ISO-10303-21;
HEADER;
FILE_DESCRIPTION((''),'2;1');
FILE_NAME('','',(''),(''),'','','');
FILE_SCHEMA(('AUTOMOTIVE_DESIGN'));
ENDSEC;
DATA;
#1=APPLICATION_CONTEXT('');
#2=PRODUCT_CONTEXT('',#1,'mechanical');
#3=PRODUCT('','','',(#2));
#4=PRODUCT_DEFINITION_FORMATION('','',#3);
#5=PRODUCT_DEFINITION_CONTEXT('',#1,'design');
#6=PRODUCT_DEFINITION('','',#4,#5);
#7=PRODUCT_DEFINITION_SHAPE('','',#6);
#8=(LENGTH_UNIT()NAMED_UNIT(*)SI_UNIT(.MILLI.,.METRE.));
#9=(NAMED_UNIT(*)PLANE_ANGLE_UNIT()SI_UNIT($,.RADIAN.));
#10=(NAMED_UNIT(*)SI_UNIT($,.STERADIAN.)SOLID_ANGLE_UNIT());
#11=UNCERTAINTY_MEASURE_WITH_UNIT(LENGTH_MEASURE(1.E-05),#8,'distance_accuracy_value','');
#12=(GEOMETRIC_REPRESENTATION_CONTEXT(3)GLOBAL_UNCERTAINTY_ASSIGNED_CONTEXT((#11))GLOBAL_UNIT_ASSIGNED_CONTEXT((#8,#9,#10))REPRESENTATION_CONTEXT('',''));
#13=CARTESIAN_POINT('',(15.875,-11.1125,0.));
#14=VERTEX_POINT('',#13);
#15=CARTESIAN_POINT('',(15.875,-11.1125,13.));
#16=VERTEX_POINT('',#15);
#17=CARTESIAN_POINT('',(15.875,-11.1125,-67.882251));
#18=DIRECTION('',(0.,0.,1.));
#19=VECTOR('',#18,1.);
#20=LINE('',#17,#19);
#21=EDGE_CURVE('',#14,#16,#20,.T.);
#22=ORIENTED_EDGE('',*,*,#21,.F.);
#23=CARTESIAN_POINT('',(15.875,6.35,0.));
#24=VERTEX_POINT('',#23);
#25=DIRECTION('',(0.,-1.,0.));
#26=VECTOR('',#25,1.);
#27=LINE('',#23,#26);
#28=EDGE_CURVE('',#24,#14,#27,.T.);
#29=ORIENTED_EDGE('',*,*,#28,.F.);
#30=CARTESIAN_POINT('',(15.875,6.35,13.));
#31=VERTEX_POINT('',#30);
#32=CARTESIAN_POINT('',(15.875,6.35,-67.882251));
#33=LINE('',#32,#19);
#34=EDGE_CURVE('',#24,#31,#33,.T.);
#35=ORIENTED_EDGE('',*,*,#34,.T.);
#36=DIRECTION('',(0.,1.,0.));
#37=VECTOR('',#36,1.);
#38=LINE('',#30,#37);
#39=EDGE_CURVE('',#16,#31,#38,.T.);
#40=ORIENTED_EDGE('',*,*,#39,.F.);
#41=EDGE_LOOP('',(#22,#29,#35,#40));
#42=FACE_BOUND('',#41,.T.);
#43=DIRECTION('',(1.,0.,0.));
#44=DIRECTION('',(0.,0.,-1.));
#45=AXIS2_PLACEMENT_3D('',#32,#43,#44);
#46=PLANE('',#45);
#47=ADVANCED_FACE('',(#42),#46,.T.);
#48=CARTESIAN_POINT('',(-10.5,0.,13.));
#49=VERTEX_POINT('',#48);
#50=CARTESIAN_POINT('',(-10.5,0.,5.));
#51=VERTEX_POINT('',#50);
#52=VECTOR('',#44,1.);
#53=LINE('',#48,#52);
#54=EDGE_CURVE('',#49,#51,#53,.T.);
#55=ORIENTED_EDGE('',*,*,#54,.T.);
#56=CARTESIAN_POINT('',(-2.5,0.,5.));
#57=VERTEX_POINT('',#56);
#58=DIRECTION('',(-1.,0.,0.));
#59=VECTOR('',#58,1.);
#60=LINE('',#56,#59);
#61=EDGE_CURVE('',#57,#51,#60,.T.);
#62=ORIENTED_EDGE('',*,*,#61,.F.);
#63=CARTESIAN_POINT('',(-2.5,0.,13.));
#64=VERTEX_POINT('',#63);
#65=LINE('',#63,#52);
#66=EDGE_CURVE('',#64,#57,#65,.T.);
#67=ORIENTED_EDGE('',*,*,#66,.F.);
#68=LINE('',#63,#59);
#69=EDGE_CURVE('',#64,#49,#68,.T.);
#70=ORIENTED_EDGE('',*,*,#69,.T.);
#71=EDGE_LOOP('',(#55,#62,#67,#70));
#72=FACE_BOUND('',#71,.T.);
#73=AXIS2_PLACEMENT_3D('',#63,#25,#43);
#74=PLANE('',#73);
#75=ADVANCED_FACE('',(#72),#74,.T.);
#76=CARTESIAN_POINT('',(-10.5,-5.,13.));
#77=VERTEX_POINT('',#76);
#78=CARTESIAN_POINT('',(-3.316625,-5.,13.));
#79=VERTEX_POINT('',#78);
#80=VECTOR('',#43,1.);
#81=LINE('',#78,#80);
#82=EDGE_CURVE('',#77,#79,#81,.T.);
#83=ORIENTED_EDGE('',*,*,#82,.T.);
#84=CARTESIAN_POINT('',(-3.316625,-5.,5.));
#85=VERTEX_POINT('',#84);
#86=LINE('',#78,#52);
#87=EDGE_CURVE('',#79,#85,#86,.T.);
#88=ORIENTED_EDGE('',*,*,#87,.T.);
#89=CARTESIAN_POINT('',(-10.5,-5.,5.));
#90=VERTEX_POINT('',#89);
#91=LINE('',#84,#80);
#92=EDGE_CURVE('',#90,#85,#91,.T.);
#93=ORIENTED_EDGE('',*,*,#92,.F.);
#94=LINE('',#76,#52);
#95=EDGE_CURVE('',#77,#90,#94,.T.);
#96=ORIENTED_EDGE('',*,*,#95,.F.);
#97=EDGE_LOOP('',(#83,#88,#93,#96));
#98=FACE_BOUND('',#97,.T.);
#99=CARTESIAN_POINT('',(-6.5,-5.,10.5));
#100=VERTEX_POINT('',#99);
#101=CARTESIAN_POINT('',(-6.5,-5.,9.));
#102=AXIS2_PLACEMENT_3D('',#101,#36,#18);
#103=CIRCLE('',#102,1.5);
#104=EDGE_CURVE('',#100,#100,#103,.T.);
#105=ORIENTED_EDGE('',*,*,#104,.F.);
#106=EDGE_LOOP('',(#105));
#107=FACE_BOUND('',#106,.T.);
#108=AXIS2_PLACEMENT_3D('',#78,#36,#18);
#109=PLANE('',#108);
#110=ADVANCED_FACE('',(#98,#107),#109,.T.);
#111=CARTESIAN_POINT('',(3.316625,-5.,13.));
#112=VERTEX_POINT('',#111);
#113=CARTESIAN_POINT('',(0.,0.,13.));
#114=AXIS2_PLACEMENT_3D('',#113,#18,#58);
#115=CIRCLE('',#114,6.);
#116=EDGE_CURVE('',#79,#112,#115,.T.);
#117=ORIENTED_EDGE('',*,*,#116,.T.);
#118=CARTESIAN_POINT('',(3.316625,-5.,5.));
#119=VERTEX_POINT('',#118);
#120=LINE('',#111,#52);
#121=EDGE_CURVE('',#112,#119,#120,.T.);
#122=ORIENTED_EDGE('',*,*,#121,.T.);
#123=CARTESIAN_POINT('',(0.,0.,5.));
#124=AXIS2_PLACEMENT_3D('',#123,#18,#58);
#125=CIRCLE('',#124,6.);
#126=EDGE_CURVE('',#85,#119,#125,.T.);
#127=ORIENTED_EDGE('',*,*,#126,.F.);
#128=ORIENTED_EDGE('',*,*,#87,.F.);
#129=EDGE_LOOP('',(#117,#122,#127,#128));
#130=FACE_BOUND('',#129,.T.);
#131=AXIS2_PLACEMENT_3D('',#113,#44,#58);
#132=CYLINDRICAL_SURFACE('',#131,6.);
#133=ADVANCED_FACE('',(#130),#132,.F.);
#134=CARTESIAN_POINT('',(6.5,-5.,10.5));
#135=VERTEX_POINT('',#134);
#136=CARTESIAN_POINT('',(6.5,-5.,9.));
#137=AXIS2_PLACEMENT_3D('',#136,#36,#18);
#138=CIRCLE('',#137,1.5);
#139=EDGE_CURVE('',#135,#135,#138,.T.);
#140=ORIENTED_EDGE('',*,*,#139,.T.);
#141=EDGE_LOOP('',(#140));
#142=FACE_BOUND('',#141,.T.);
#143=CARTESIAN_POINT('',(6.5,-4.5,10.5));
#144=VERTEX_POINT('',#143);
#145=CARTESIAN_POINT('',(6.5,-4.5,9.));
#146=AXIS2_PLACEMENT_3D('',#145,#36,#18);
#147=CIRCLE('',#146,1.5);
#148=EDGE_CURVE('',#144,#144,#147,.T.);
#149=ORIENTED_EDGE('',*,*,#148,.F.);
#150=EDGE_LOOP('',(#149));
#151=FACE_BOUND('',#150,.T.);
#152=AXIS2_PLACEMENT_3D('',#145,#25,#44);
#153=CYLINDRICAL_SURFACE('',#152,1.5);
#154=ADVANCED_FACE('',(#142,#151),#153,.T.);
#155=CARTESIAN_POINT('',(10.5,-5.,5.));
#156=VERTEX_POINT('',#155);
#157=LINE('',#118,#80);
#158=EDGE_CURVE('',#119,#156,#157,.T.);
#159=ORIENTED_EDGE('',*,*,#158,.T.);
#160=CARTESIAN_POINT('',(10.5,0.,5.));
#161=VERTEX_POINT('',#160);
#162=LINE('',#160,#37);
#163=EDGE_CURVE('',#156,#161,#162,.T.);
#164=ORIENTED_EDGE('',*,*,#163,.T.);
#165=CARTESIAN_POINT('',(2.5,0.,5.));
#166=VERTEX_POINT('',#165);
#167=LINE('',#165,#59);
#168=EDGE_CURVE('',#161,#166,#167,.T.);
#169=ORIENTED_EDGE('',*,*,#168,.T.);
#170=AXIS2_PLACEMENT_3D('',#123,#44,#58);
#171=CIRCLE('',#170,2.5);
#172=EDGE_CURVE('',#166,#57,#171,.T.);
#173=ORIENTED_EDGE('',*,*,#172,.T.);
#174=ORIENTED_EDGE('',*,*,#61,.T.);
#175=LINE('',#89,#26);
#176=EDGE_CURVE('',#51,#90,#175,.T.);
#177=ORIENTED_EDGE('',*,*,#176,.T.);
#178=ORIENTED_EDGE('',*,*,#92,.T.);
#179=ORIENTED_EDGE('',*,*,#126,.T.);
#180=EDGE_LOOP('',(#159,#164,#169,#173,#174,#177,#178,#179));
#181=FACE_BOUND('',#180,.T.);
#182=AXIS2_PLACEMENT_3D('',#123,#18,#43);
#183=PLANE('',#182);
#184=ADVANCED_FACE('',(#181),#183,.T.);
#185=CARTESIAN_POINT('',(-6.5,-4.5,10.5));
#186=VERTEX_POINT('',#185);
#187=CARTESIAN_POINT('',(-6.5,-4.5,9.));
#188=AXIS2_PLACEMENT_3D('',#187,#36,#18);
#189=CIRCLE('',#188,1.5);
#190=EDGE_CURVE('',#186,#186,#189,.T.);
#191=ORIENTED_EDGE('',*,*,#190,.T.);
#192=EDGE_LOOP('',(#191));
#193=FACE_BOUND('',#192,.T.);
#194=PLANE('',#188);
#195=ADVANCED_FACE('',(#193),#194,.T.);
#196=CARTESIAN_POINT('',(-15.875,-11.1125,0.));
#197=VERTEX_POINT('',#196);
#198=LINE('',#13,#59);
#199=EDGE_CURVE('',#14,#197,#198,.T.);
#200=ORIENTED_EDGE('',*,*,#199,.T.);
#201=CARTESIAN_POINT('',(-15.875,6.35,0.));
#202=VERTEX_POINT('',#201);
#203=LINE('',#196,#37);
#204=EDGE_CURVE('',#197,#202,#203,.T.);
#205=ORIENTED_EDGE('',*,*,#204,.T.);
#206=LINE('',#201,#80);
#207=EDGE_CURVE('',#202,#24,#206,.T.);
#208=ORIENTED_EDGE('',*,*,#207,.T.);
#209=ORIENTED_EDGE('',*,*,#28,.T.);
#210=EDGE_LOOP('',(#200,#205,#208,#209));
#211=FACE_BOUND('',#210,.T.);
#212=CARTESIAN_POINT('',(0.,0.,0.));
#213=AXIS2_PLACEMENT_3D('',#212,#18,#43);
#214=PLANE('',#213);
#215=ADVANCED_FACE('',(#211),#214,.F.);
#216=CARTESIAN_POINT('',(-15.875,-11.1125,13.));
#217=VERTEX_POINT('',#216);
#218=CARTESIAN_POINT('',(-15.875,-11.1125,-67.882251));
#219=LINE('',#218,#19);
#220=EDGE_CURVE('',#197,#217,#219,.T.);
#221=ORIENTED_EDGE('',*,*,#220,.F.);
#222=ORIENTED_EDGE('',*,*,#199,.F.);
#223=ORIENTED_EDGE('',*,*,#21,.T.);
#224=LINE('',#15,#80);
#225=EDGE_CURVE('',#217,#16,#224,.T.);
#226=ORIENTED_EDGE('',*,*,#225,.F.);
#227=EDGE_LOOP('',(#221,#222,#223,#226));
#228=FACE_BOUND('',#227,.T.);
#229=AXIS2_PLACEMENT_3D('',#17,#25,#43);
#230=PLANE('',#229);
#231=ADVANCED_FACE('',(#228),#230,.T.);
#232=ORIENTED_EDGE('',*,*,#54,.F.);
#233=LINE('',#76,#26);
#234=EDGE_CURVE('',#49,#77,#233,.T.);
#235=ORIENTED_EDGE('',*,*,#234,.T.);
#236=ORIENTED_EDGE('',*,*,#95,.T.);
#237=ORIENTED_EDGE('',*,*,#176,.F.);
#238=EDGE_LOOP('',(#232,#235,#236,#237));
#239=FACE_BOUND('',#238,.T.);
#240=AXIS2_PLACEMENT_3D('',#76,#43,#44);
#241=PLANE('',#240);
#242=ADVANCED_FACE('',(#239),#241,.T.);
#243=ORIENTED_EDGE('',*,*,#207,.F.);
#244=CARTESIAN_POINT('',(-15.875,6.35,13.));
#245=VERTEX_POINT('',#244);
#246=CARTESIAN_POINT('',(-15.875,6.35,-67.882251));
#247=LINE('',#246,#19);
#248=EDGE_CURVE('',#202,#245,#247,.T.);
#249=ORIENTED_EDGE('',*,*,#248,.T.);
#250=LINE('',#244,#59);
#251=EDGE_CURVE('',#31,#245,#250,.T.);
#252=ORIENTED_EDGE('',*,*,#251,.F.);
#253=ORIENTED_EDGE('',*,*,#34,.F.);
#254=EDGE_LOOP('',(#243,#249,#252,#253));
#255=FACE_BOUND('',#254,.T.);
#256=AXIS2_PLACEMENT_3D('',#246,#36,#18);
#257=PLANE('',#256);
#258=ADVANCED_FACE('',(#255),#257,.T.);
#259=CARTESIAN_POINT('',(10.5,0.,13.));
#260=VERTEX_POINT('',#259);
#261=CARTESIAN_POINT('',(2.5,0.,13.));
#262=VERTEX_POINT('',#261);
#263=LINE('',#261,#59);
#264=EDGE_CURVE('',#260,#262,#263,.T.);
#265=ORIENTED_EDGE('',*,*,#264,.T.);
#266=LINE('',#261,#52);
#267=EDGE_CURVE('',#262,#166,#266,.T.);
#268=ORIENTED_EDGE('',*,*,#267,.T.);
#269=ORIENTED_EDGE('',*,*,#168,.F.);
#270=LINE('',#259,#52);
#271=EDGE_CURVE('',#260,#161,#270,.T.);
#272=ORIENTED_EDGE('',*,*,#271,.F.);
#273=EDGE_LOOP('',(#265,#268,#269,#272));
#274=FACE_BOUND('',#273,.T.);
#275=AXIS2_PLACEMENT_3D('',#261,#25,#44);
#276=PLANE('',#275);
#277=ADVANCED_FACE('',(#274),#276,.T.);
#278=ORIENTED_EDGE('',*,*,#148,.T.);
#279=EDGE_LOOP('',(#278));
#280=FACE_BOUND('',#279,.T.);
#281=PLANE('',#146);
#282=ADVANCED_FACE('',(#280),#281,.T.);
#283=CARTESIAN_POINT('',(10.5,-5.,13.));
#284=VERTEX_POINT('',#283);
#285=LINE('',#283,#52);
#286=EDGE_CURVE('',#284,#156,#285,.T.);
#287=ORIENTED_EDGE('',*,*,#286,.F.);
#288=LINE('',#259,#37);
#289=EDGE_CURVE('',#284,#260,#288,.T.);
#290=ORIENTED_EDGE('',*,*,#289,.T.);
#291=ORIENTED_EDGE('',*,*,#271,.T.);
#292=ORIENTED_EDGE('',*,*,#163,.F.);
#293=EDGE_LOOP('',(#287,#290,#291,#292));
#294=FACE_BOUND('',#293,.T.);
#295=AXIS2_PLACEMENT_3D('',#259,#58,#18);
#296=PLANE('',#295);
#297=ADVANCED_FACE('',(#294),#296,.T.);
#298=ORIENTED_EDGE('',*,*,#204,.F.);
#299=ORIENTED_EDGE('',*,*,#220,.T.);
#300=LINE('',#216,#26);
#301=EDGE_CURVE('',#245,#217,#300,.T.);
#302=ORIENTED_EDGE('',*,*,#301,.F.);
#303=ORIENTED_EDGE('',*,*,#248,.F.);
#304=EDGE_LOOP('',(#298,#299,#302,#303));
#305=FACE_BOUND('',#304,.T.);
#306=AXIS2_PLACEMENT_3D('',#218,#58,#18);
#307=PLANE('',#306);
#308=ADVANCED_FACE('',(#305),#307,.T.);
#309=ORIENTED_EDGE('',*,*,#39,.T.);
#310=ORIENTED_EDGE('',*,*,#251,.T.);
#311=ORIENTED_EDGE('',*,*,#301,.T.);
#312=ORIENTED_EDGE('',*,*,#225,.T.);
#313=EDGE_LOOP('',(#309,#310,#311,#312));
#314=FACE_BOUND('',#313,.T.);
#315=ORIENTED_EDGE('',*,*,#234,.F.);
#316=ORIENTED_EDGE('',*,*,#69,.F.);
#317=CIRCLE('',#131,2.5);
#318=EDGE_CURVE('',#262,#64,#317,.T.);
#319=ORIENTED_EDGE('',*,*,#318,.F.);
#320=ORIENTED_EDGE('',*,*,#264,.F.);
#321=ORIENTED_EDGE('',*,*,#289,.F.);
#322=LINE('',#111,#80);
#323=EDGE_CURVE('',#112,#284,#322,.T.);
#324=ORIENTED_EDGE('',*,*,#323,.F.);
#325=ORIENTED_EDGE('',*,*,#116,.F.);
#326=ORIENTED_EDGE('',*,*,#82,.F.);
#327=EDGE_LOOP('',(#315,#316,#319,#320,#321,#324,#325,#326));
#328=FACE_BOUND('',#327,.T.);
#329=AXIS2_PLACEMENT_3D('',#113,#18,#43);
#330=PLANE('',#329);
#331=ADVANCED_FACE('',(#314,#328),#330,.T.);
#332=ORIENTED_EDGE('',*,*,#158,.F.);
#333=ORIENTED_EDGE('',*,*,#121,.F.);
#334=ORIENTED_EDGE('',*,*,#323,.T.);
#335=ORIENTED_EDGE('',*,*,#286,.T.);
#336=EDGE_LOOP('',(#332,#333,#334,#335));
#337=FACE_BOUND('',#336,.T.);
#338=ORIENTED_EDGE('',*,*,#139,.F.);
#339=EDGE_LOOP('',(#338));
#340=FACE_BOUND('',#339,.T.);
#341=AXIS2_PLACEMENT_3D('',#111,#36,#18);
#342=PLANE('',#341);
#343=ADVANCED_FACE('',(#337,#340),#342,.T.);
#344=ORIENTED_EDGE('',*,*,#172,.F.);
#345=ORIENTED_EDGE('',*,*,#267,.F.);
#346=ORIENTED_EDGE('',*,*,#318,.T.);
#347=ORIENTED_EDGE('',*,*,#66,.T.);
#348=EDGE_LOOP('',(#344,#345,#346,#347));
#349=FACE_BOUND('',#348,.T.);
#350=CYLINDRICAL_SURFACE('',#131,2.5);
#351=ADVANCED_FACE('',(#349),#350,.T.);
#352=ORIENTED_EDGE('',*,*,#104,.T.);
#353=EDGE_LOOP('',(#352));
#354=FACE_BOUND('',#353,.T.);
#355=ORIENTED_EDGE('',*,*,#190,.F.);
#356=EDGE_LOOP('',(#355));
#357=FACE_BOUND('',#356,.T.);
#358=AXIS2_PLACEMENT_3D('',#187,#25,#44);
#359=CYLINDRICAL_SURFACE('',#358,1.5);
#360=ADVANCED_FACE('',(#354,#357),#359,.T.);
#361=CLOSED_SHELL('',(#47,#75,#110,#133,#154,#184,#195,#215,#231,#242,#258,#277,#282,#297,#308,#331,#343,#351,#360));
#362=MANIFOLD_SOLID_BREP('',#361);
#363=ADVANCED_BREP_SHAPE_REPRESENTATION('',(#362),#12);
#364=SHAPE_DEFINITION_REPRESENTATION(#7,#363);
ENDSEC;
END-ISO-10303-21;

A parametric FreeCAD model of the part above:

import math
import FreeCAD as App
import Part
import Sketcher

V = App.Vector


def add_polygon(sketch, points):
    """Adds a closed chain of lines whose ends are joined by coincident constraints."""
    first, n = sketch.GeometryCount, len(points)
    for a, b in zip(points, points[1:] + points[:1]):
        sketch.addGeometry(Part.LineSegment(App.Vector(*a, 0), App.Vector(*b, 0)), False)
    for i in range(n):
        sketch.addConstraint(Sketcher.Constraint("Coincident", first + i, 2, first + (i + 1) % n, 1))

doc = App.newDocument("Part")
params = doc.addObject("Spreadsheet::Sheet", "Params")
for row, (alias, value) in enumerate([
    ("sketch1_diameter", "48 mm"),
    ("pad1_length", "5 mm"),
    ("sketch2_diameter", "48 mm"),
    ("sketch2_radius", "6 mm"),
    ("sketch2_radius2", "2.5 mm"),
    ("sketch2_width", "8 mm"),
    ("sketch2_height", "5 mm"),
    ("pad2_length", "8 mm"),
    ("sketch3_diameter", "48 mm"),
    ("sketch3_width", "31.75 mm"),
    ("pocket1_length", "13 mm"),
    ("sketch4_diameter", "3 mm"),
    ("pad3_length", "0.5 mm"),
], start=1):
    params.set(f"A{row}", alias)
    params.set(f"B{row}", "=" + value)
    params.setAlias(f"B{row}", alias)

body = doc.addObject("PartDesign::Body", "Body")

sketch1 = body.newObject("Sketcher::SketchObject", "Sketch")
sketch1.AttachmentSupport = (doc.getObject("XY_Plane"), [""])
sketch1.MapMode = "FlatFace"
sketch1.addGeometry(Part.Circle(V(0, 0, 0), V(0, 0, 1), 24), False)
sketch1.addConstraint([
    Sketcher.Constraint("Coincident", 0, 3, -1, 1),
    Sketcher.Constraint("Diameter", 0, 48.0),
])
sketch1.setExpression("Constraints[1]", "Params.sketch1_diameter")
pad1 = body.newObject("PartDesign::Pad", "Pad")
pad1.Profile = sketch1
pad1.setExpression("Length", "Params.pad1_length")

sketch2 = body.newObject("Sketcher::SketchObject", "Sketch001")
sketch2.AttachmentSupport = (doc.getObject("XY_Plane"), [""])
sketch2.MapMode = "FlatFace"
sketch2.AttachmentOffset = App.Placement(V(0, 0, 5), App.Rotation())
sketch2.addGeometry([
    Part.Circle(V(0, 0, 0), V(0, 0, 1), 24),
    Part.LineSegment(V(-10.5, 0, 0), V(-2.5, 0, 0)),
    Part.ArcOfCircle(Part.Circle(V(0, 0, 0), V(0, 0, 1), 2.5), math.radians(180), math.radians(360)),
    Part.LineSegment(V(2.5, 0, 0), V(10.5, 0, 0)),
    Part.LineSegment(V(10.5, 0, 0), V(10.5, -5, 0)),
    Part.LineSegment(V(10.5, -5, 0), V(3.3, -5, 0)),
    Part.ArcOfCircle(Part.Circle(V(0, 0, 0), V(0, 0, 1), 6), math.radians(-124), math.radians(-56)),
    Part.LineSegment(V(-3.3, -5, 0), V(-10.5, -5, 0)),
    Part.LineSegment(V(-10.5, -5, 0), V(-10.5, 0, 0)),
], False)
sketch2.addConstraint([
    Sketcher.Constraint("Coincident", 1, 2, 2, 1),
    Sketcher.Constraint("Coincident", 2, 2, 3, 1),
    Sketcher.Constraint("Coincident", 3, 2, 4, 1),
    Sketcher.Constraint("Coincident", 4, 2, 5, 1),
    Sketcher.Constraint("Coincident", 5, 2, 6, 2),
    Sketcher.Constraint("Coincident", 6, 1, 7, 1),
    Sketcher.Constraint("Coincident", 7, 2, 8, 1),
    Sketcher.Constraint("Coincident", 8, 2, 1, 1),
    Sketcher.Constraint("Horizontal", 1),
    Sketcher.Constraint("Horizontal", 3),
    Sketcher.Constraint("Vertical", 4),
    Sketcher.Constraint("Horizontal", 5),
    Sketcher.Constraint("Horizontal", 7),
    Sketcher.Constraint("Vertical", 8),
    Sketcher.Constraint("Coincident", 0, 3, -1, 1),
    Sketcher.Constraint("Coincident", 2, 3, -1, 1),
    Sketcher.Constraint("Coincident", 6, 3, -1, 1),
    Sketcher.Constraint("Symmetric", 3, 2, 8, 2, -1, 1),
    Sketcher.Constraint("PointOnObject", 1, 2, -1),
    Sketcher.Constraint("Horizontal", 5, 2, 6, 1),
    Sketcher.Constraint("Diameter", 0, 48.0),
    Sketcher.Constraint("Radius", 6, 6.0),
    Sketcher.Constraint("Radius", 2, 2.5),
    Sketcher.Constraint("DistanceX", 1, 1, 1, 2, 8.0),
    Sketcher.Constraint("DistanceY", 4, 2, 4, 1, 5.0),
])
sketch2.setExpression("Constraints[20]", "Params.sketch2_diameter")
sketch2.setExpression("Constraints[21]", "Params.sketch2_radius")
sketch2.setExpression("Constraints[22]", "Params.sketch2_radius2")
sketch2.setExpression("Constraints[23]", "Params.sketch2_width")
sketch2.setExpression("Constraints[24]", "Params.sketch2_height")
pad2 = body.newObject("PartDesign::Pad", "Pad001")
pad2.Profile = sketch2
pad2.setExpression("Length", "Params.pad2_length")

sketch3 = body.newObject("Sketcher::SketchObject", "Sketch002")
sketch3.AttachmentSupport = (doc.getObject("XY_Plane"), [""])
sketch3.MapMode = "FlatFace"
sketch3.AttachmentOffset = App.Placement(V(0, 0, 13), App.Rotation())
sketch3.addGeometry(Part.Circle(V(0, 0, 0), V(0, 0, 1), 24), False)
add_polygon(sketch3, [(16, -11), (-16, -11), (-16, 6), (16, 6)])
sketch3.addConstraint([
    Sketcher.Constraint("Horizontal", 1),
    Sketcher.Constraint("Vertical", 2),
    Sketcher.Constraint("Horizontal", 3),
    Sketcher.Constraint("Vertical", 4),
    Sketcher.Constraint("Coincident", 0, 3, -1, 1),
    Sketcher.Constraint("Diameter", 0, 48.0),
    Sketcher.Constraint("DistanceX", 1, 2, 1, 1, 31.75),
    Sketcher.Constraint("DistanceY", -1, 1, 2, 2, 6.35),
    Sketcher.Constraint("DistanceY", 2, 1, 2, 2, 17.4625),
    Sketcher.Constraint("DistanceX", 1, 2, -1, 1, 15.875),
])
sketch3.setExpression("Constraints[9]", "Params.sketch3_diameter")
sketch3.setExpression("Constraints[10]", "Params.sketch3_width")
pocket1 = body.newObject("PartDesign::Pocket", "Pocket")
pocket1.Profile = sketch3
pocket1.setExpression("Length", "Params.pocket1_length")

sketch4 = body.newObject("Sketcher::SketchObject", "Sketch003")
sketch4.AttachmentSupport = (doc.getObject("XZ_Plane"), [""])
sketch4.MapMode = "FlatFace"
sketch4.AttachmentOffset = App.Placement(V(0, 0, 5), App.Rotation())
sketch4.addGeometry([
    Part.Circle(V(-6.5, 9, 0), V(0, 0, 1), 1.5),
    Part.Circle(V(6.5, 9, 0), V(0, 0, 1), 1.5),
], False)
sketch4.addConstraint([
    Sketcher.Constraint("Equal", 0, 1),
    Sketcher.Constraint("Symmetric", 0, 3, 1, 3, -2),
    Sketcher.Constraint("Diameter", 0, 3.0),
    Sketcher.Constraint("DistanceY", -1, 1, 0, 3, 9.0),
    Sketcher.Constraint("DistanceX", 0, 3, 1, 3, 13.0),
])
sketch4.setExpression("Constraints[2]", "Params.sketch4_diameter")
pad3 = body.newObject("PartDesign::Pad", "Pad002")
pad3.Profile = sketch4
pad3.setExpression("Length", "Params.pad3_length")
pad3.Reversed = True

doc.recompute()
